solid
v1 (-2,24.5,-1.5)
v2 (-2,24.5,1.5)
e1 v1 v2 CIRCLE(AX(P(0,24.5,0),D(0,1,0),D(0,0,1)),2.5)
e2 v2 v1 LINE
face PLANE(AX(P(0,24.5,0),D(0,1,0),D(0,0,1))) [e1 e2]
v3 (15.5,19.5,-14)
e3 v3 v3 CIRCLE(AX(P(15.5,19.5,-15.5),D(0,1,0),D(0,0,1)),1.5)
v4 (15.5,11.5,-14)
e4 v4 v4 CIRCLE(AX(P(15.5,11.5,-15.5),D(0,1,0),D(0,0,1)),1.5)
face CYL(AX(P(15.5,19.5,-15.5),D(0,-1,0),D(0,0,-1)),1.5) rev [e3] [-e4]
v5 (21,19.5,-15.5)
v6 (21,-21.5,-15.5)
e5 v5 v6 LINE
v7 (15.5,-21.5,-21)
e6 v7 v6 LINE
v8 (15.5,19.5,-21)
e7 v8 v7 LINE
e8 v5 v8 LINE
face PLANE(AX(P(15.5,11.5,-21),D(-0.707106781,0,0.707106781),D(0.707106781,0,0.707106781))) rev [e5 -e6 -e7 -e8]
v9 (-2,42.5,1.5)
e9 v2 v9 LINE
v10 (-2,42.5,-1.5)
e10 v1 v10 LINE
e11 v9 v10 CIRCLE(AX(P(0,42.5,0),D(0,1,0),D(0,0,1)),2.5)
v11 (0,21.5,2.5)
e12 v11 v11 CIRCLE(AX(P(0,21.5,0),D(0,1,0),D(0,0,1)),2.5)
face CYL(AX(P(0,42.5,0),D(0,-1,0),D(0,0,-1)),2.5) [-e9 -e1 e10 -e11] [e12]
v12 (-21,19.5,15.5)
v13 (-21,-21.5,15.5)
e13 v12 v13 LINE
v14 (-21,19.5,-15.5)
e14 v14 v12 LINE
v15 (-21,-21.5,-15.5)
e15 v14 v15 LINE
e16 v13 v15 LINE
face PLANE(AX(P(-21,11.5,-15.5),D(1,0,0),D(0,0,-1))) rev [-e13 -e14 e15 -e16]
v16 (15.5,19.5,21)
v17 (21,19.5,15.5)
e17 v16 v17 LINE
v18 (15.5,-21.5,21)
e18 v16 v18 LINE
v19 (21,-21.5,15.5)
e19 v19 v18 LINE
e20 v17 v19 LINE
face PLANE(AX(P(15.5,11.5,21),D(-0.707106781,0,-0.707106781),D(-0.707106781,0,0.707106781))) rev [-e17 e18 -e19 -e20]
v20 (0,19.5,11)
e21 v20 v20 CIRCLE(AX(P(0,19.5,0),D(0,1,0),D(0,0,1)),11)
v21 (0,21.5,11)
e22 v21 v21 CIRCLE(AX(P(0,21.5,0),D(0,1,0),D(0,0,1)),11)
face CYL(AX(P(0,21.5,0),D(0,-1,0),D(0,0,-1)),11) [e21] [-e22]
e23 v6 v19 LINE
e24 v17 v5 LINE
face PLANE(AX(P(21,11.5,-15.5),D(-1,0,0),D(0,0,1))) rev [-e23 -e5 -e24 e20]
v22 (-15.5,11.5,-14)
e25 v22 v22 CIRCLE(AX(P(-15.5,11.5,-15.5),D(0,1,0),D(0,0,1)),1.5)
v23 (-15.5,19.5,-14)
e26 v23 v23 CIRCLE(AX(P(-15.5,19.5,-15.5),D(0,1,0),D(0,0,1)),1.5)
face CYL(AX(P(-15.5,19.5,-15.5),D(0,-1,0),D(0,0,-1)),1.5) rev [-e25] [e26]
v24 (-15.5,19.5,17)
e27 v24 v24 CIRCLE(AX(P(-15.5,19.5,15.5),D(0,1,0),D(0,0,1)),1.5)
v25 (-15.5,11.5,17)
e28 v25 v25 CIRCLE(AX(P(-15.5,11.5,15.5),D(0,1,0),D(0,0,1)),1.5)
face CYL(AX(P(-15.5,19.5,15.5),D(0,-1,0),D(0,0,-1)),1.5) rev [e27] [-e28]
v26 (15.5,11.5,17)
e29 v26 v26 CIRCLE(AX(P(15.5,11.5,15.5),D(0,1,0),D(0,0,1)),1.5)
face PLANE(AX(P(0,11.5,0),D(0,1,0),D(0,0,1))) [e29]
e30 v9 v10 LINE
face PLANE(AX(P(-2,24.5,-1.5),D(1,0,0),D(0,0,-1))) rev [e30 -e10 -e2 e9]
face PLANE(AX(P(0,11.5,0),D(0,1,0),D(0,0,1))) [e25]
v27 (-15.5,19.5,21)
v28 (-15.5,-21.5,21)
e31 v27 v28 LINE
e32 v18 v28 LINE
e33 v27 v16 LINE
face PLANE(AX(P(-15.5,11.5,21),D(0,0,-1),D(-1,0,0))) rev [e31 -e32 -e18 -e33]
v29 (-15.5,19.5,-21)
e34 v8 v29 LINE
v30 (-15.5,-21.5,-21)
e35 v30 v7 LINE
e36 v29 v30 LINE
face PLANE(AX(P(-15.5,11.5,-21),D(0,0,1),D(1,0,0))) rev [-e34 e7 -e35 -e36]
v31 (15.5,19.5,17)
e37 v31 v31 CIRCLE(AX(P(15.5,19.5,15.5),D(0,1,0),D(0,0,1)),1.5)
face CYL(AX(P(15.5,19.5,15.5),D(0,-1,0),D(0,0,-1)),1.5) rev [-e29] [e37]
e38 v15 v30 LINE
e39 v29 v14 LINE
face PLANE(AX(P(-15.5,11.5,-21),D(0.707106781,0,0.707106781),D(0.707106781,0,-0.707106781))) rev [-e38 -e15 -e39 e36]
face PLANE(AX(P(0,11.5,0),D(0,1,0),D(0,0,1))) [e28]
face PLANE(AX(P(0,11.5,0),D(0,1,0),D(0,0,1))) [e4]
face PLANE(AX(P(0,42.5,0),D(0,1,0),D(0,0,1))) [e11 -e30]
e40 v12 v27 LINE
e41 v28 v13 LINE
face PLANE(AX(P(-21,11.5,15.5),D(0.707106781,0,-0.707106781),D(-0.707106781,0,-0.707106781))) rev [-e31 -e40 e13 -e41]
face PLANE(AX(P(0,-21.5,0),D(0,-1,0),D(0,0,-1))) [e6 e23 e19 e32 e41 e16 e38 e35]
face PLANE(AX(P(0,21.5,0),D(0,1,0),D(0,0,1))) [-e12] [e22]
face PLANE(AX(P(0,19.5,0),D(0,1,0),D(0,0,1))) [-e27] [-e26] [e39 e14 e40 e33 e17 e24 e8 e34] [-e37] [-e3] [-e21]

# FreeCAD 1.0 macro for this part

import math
import FreeCAD as App
import Part
import Sketcher

V = App.Vector

doc = App.newDocument("Part")
body = doc.addObject("PartDesign::Body", "Body")

sketch1 = body.newObject("Sketcher::SketchObject", "Sketch")
sketch1.AttachmentSupport = (doc.getObject("XZ_Plane"), [""])
sketch1.MapMode = "FlatFace"
sketch1.addGeometry(Part.LineSegment(V(-16, 21, 0), V(16, 21, 0)), False)
sketch1.addGeometry(Part.LineSegment(V(16, 21, 0), V(21, 16, 0)), False)
sketch1.addGeometry(Part.LineSegment(V(21, 16, 0), V(21, -16, 0)), False)
sketch1.addGeometry(Part.LineSegment(V(21, -16, 0), V(16, -21, 0)), False)
sketch1.addGeometry(Part.LineSegment(V(16, -21, 0), V(-16, -21, 0)), False)
sketch1.addGeometry(Part.LineSegment(V(-16, -21, 0), V(-21, -16, 0)), False)
sketch1.addGeometry(Part.LineSegment(V(-21, -16, 0), V(-21, 16, 0)), False)
sketch1.addGeometry(Part.LineSegment(V(-21, 16, 0), V(-16, 21, 0)), False)
sketch1.addConstraint(Sketcher.Constraint("Coincident", 0, 2, 1, 1))
sketch1.addConstraint(Sketcher.Constraint("Coincident", 1, 2, 2, 1))
sketch1.addConstraint(Sketcher.Constraint("Coincident", 2, 2, 3, 1))
sketch1.addConstraint(Sketcher.Constraint("Coincident", 3, 2, 4, 1))
sketch1.addConstraint(Sketcher.Constraint("Coincident", 4, 2, 5, 1))
sketch1.addConstraint(Sketcher.Constraint("Coincident", 5, 2, 6, 1))
sketch1.addConstraint(Sketcher.Constraint("Coincident", 6, 2, 7, 1))
sketch1.addConstraint(Sketcher.Constraint("Coincident", 7, 2, 0, 1))
sketch1.addConstraint(Sketcher.Constraint("Horizontal", 0))
sketch1.addConstraint(Sketcher.Constraint("Vertical", 2))
sketch1.addConstraint(Sketcher.Constraint("Horizontal", 4))
sketch1.addConstraint(Sketcher.Constraint("Vertical", 6))
sketch1.addConstraint(Sketcher.Constraint("Symmetric", 0, 2, 4, 2, -1, 1))
sketch1.addConstraint(Sketcher.Constraint("Symmetric", 1, 2, 5, 2, -1, 1))
sketch1.addConstraint(Sketcher.Constraint("Perpendicular", 1, 3))
sketch1.addConstraint(Sketcher.Constraint("Perpendicular", 5, 7))
sketch1.addConstraint(Sketcher.Constraint("Horizontal", 2, 2, 5, 2))
sketch1.addConstraint(Sketcher.Constraint("Horizontal", 1, 2, 6, 2))
sketch1.addConstraint(Sketcher.Constraint("Vertical", 0, 2, 3, 2))
sketch1.addConstraint(Sketcher.Constraint("Equal", 4, 2))
sketch1.addConstraint(Sketcher.Constraint("DistanceX", 0, 1, 0, 2, 31.0))
sketch1.addConstraint(Sketcher.Constraint("DistanceY", -1, 1, 0, 2, 21.0))
pad1 = body.newObject("PartDesign::Pad", "Pad")
pad1.Profile = sketch1
pad1.Length = 23
pad1.Midplane = True

sketch2 = body.newObject("Sketcher::SketchObject", "Sketch001")
sketch2.AttachmentSupport = (doc.getObject("XZ_Plane"), [""])
sketch2.MapMode = "FlatFace"
sketch2.AttachmentOffset = App.Placement(V(0, 0, 11.5), App.Rotation())
sketch2.addGeometry(Part.LineSegment(V(16, 21, 0), V(-16, 21, 0)), False)
sketch2.addGeometry(Part.LineSegment(V(-16, 21, 0), V(-21, 16, 0)), False)
sketch2.addGeometry(Part.LineSegment(V(-21, 16, 0), V(-21, -16, 0)), False)
sketch2.addGeometry(Part.LineSegment(V(-21, -16, 0), V(-16, -21, 0)), False)
sketch2.addGeometry(Part.LineSegment(V(-16, -21, 0), V(16, -21, 0)), False)
sketch2.addGeometry(Part.LineSegment(V(16, -21, 0), V(21, -16, 0)), False)
sketch2.addGeometry(Part.LineSegment(V(21, -16, 0), V(21, 16, 0)), False)
sketch2.addGeometry(Part.LineSegment(V(21, 16, 0), V(16, 21, 0)), False)
sketch2.addConstraint(Sketcher.Constraint("Coincident", 0, 2, 1, 1))
sketch2.addConstraint(Sketcher.Constraint("Coincident", 1, 2, 2, 1))
sketch2.addConstraint(Sketcher.Constraint("Coincident", 2, 2, 3, 1))
sketch2.addConstraint(Sketcher.Constraint("Coincident", 3, 2, 4, 1))
sketch2.addConstraint(Sketcher.Constraint("Coincident", 4, 2, 5, 1))
sketch2.addConstraint(Sketcher.Constraint("Coincident", 5, 2, 6, 1))
sketch2.addConstraint(Sketcher.Constraint("Coincident", 6, 2, 7, 1))
sketch2.addConstraint(Sketcher.Constraint("Coincident", 7, 2, 0, 1))
sketch2.addConstraint(Sketcher.Constraint("Horizontal", 0))
sketch2.addConstraint(Sketcher.Constraint("Vertical", 2))
sketch2.addConstraint(Sketcher.Constraint("Horizontal", 4))
sketch2.addConstraint(Sketcher.Constraint("Vertical", 6))
sketch2.addConstraint(Sketcher.Constraint("Symmetric", 0, 2, 4, 2, -1, 1))
sketch2.addConstraint(Sketcher.Constraint("Symmetric", 1, 2, 5, 2, -1, 1))
sketch2.addConstraint(Sketcher.Constraint("Perpendicular", 1, 3))
sketch2.addConstraint(Sketcher.Constraint("Perpendicular", 5, 7))
sketch2.addConstraint(Sketcher.Constraint("Horizontal", 2, 2, 5, 2))
sketch2.addConstraint(Sketcher.Constraint("Horizontal", 1, 2, 6, 2))
sketch2.addConstraint(Sketcher.Constraint("Vertical", 0, 2, 3, 2))
sketch2.addConstraint(Sketcher.Constraint("Equal", 4, 2))
sketch2.addConstraint(Sketcher.Constraint("DistanceX", 0, 2, 0, 1, 31.0))
sketch2.addConstraint(Sketcher.Constraint("DistanceY", -1, 1, 0, 2, 21.0))
pad2 = body.newObject("PartDesign::Pad", "Pad001")
pad2.Profile = sketch2
pad2.Length = 10

sketch3 = body.newObject("Sketcher::SketchObject", "Sketch002")
sketch3.AttachmentSupport = (doc.getObject("XZ_Plane"), [""])
sketch3.MapMode = "FlatFace"
sketch3.AttachmentOffset = App.Placement(V(0, 0, -11.5), App.Rotation())
sketch3.addGeometry(Part.LineSegment(V(-15.5, 21, 0), V(15.5, 21, 0)), False)
sketch3.addGeometry(Part.LineSegment(V(15.5, 21, 0), V(21, 15.5, 0)), False)
sketch3.addGeometry(Part.LineSegment(V(21, 15.5, 0), V(21, -15.5, 0)), False)
sketch3.addGeometry(Part.LineSegment(V(21, -15.5, 0), V(15.5, -21, 0)), False)
sketch3.addGeometry(Part.LineSegment(V(15.5, -21, 0), V(-15.5, -21, 0)), False)
sketch3.addGeometry(Part.LineSegment(V(-15.5, -21, 0), V(-21, -15.5, 0)), False)
sketch3.addGeometry(Part.LineSegment(V(-21, -15.5, 0), V(-21, 15.5, 0)), False)
sketch3.addGeometry(Part.LineSegment(V(-21, 15.5, 0), V(-15.5, 21, 0)), False)
sketch3.addGeometry(Part.Circle(V(-15.5, 15.5, 0), V(0, 0, 1), 1.5), False)
sketch3.addGeometry(Part.Circle(V(15.5, 15.5, 0), V(0, 0, 1), 1.5), False)
sketch3.addGeometry(Part.Circle(V(-15.5, -15.5, 0), V(0, 0, 1), 1.5), False)
sketch3.addGeometry(Part.Circle(V(15.5, -15.5, 0), V(0, 0, 1), 1.5), False)
sketch3.addConstraint(Sketcher.Constraint("Coincident", 0, 2, 1, 1))
sketch3.addConstraint(Sketcher.Constraint("Coincident", 1, 2, 2, 1))
sketch3.addConstraint(Sketcher.Constraint("Coincident", 2, 2, 3, 1))
sketch3.addConstraint(Sketcher.Constraint("Coincident", 3, 2, 4, 1))
sketch3.addConstraint(Sketcher.Constraint("Coincident", 4, 2, 5, 1))
sketch3.addConstraint(Sketcher.Constraint("Coincident", 5, 2, 6, 1))
sketch3.addConstraint(Sketcher.Constraint("Coincident", 6, 2, 7, 1))
sketch3.addConstraint(Sketcher.Constraint("Coincident", 7, 2, 0, 1))
sketch3.addConstraint(Sketcher.Constraint("Horizontal", 0))
sketch3.addConstraint(Sketcher.Constraint("Vertical", 2))
sketch3.addConstraint(Sketcher.Constraint("Horizontal", 4))
sketch3.addConstraint(Sketcher.Constraint("Vertical", 6))
sketch3.addConstraint(Sketcher.Constraint("Equal", 8, 9))
sketch3.addConstraint(Sketcher.Constraint("Equal", 9, 10))
sketch3.addConstraint(Sketcher.Constraint("Equal", 10, 11))
sketch3.addConstraint(Sketcher.Constraint("Symmetric", 9, 3, 10, 3, -1, 1))
sketch3.addConstraint(Sketcher.Constraint("Symmetric", 8, 3, 11, 3, -1, 1))
sketch3.addConstraint(Sketcher.Constraint("Symmetric", 0, 2, 4, 2, -1, 1))
sketch3.addConstraint(Sketcher.Constraint("Symmetric", 1, 2, 5, 2, -1, 1))
sketch3.addConstraint(Sketcher.Constraint("Symmetric", 8, 3, 9, 3, -2))
sketch3.addConstraint(Sketcher.Constraint("Perpendicular", 1, 3))
sketch3.addConstraint(Sketcher.Constraint("Perpendicular", 5, 7))
sketch3.addConstraint(Sketcher.Constraint("Horizontal", 9, 3, 1, 2))
sketch3.addConstraint(Sketcher.Constraint("Horizontal", 11, 3, 2, 2))
sketch3.addConstraint(Sketcher.Constraint("Horizontal", 1, 2, 6, 2))
sketch3.addConstraint(Sketcher.Constraint("Vertical", 11, 3, 0, 2))
sketch3.addConstraint(Sketcher.Constraint("Vertical", 0, 2, 3, 2))
sketch3.addConstraint(Sketcher.Constraint("Equal", 4, 2))
sketch3.addConstraint(Sketcher.Constraint("Diameter", 8, 3.0))
sketch3.addConstraint(Sketcher.Constraint("DistanceX", 0, 1, 0, 2, 31.0))
sketch3.addConstraint(Sketcher.Constraint("DistanceY", -1, 1, 0, 2, 21.0))
pad3 = body.newObject("PartDesign::Pad", "Pad002")
pad3.Profile = sketch3
pad3.Length = 8
pad3.Reversed = True

sketch4 = body.newObject("Sketcher::SketchObject", "Sketch003")
sketch4.AttachmentSupport = (doc.getObject("XZ_Plane"), [""])
sketch4.MapMode = "FlatFace"
sketch4.AttachmentOffset = App.Placement(V(0, 0, -19.5), App.Rotation())
sketch4.addGeometry(Part.Circle(V(0, 0, 0), V(0, 0, 1), 11), False)
sketch4.addConstraint(Sketcher.Constraint("Coincident", 0, 3, -1, 1))
sketch4.addConstraint(Sketcher.Constraint("Diameter", 0, 22.0))
pad4 = body.newObject("PartDesign::Pad", "Pad003")
pad4.Profile = sketch4
pad4.Length = 2
pad4.Reversed = True

sketch5 = body.newObject("Sketcher::SketchObject", "Sketch004")
sketch5.AttachmentSupport = (doc.getObject("XZ_Plane"), [""])
sketch5.MapMode = "FlatFace"
sketch5.AttachmentOffset = App.Placement(V(0, 0, -21.5), App.Rotation())
sketch5.addGeometry(Part.Circle(V(0, 0, 0), V(0, 0, 1), 2.5), False)
sketch5.addConstraint(Sketcher.Constraint("Coincident", 0, 3, -1, 1))
sketch5.addConstraint(Sketcher.Constraint("Diameter", 0, 5.0))
pad5 = body.newObject("PartDesign::Pad", "Pad004")
pad5.Profile = sketch5
pad5.Length = 21
pad5.Reversed = True

sketch6 = body.newObject("Sketcher::SketchObject", "Sketch005")
sketch6.AttachmentSupport = (doc.getObject("XZ_Plane"), [""])
sketch6.MapMode = "FlatFace"
sketch6.AttachmentOffset = App.Placement(V(0, 0, -42.5), App.Rotation())
sketch6.addGeometry(Part.LineSegment(V(-2, 1.5, 0), V(-2, -1.5, 0)), False)
sketch6.addGeometry(Part.ArcOfCircle(Part.Circle(V(0, 0, 0), V(0, 0, 1), 2.5), math.radians(143), math.radians(217)), False)
sketch6.addConstraint(Sketcher.Constraint("Coincident", 0, 1, 1, 1))
sketch6.addConstraint(Sketcher.Constraint("Coincident", 1, 2, 0, 2))
sketch6.addConstraint(Sketcher.Constraint("Vertical", 0))
sketch6.addConstraint(Sketcher.Constraint("Coincident", 1, 3, -1, 1))
sketch6.addConstraint(Sketcher.Constraint("Radius", 1, 2.5))
sketch6.addConstraint(Sketcher.Constraint("DistanceY", 0, 2, 0, 1, 3.0))
pocket1 = body.newObject("PartDesign::Pocket", "Pocket")
pocket1.Profile = sketch6
pocket1.Length = 18
pocket1.Reversed = True

doc.recompute()
